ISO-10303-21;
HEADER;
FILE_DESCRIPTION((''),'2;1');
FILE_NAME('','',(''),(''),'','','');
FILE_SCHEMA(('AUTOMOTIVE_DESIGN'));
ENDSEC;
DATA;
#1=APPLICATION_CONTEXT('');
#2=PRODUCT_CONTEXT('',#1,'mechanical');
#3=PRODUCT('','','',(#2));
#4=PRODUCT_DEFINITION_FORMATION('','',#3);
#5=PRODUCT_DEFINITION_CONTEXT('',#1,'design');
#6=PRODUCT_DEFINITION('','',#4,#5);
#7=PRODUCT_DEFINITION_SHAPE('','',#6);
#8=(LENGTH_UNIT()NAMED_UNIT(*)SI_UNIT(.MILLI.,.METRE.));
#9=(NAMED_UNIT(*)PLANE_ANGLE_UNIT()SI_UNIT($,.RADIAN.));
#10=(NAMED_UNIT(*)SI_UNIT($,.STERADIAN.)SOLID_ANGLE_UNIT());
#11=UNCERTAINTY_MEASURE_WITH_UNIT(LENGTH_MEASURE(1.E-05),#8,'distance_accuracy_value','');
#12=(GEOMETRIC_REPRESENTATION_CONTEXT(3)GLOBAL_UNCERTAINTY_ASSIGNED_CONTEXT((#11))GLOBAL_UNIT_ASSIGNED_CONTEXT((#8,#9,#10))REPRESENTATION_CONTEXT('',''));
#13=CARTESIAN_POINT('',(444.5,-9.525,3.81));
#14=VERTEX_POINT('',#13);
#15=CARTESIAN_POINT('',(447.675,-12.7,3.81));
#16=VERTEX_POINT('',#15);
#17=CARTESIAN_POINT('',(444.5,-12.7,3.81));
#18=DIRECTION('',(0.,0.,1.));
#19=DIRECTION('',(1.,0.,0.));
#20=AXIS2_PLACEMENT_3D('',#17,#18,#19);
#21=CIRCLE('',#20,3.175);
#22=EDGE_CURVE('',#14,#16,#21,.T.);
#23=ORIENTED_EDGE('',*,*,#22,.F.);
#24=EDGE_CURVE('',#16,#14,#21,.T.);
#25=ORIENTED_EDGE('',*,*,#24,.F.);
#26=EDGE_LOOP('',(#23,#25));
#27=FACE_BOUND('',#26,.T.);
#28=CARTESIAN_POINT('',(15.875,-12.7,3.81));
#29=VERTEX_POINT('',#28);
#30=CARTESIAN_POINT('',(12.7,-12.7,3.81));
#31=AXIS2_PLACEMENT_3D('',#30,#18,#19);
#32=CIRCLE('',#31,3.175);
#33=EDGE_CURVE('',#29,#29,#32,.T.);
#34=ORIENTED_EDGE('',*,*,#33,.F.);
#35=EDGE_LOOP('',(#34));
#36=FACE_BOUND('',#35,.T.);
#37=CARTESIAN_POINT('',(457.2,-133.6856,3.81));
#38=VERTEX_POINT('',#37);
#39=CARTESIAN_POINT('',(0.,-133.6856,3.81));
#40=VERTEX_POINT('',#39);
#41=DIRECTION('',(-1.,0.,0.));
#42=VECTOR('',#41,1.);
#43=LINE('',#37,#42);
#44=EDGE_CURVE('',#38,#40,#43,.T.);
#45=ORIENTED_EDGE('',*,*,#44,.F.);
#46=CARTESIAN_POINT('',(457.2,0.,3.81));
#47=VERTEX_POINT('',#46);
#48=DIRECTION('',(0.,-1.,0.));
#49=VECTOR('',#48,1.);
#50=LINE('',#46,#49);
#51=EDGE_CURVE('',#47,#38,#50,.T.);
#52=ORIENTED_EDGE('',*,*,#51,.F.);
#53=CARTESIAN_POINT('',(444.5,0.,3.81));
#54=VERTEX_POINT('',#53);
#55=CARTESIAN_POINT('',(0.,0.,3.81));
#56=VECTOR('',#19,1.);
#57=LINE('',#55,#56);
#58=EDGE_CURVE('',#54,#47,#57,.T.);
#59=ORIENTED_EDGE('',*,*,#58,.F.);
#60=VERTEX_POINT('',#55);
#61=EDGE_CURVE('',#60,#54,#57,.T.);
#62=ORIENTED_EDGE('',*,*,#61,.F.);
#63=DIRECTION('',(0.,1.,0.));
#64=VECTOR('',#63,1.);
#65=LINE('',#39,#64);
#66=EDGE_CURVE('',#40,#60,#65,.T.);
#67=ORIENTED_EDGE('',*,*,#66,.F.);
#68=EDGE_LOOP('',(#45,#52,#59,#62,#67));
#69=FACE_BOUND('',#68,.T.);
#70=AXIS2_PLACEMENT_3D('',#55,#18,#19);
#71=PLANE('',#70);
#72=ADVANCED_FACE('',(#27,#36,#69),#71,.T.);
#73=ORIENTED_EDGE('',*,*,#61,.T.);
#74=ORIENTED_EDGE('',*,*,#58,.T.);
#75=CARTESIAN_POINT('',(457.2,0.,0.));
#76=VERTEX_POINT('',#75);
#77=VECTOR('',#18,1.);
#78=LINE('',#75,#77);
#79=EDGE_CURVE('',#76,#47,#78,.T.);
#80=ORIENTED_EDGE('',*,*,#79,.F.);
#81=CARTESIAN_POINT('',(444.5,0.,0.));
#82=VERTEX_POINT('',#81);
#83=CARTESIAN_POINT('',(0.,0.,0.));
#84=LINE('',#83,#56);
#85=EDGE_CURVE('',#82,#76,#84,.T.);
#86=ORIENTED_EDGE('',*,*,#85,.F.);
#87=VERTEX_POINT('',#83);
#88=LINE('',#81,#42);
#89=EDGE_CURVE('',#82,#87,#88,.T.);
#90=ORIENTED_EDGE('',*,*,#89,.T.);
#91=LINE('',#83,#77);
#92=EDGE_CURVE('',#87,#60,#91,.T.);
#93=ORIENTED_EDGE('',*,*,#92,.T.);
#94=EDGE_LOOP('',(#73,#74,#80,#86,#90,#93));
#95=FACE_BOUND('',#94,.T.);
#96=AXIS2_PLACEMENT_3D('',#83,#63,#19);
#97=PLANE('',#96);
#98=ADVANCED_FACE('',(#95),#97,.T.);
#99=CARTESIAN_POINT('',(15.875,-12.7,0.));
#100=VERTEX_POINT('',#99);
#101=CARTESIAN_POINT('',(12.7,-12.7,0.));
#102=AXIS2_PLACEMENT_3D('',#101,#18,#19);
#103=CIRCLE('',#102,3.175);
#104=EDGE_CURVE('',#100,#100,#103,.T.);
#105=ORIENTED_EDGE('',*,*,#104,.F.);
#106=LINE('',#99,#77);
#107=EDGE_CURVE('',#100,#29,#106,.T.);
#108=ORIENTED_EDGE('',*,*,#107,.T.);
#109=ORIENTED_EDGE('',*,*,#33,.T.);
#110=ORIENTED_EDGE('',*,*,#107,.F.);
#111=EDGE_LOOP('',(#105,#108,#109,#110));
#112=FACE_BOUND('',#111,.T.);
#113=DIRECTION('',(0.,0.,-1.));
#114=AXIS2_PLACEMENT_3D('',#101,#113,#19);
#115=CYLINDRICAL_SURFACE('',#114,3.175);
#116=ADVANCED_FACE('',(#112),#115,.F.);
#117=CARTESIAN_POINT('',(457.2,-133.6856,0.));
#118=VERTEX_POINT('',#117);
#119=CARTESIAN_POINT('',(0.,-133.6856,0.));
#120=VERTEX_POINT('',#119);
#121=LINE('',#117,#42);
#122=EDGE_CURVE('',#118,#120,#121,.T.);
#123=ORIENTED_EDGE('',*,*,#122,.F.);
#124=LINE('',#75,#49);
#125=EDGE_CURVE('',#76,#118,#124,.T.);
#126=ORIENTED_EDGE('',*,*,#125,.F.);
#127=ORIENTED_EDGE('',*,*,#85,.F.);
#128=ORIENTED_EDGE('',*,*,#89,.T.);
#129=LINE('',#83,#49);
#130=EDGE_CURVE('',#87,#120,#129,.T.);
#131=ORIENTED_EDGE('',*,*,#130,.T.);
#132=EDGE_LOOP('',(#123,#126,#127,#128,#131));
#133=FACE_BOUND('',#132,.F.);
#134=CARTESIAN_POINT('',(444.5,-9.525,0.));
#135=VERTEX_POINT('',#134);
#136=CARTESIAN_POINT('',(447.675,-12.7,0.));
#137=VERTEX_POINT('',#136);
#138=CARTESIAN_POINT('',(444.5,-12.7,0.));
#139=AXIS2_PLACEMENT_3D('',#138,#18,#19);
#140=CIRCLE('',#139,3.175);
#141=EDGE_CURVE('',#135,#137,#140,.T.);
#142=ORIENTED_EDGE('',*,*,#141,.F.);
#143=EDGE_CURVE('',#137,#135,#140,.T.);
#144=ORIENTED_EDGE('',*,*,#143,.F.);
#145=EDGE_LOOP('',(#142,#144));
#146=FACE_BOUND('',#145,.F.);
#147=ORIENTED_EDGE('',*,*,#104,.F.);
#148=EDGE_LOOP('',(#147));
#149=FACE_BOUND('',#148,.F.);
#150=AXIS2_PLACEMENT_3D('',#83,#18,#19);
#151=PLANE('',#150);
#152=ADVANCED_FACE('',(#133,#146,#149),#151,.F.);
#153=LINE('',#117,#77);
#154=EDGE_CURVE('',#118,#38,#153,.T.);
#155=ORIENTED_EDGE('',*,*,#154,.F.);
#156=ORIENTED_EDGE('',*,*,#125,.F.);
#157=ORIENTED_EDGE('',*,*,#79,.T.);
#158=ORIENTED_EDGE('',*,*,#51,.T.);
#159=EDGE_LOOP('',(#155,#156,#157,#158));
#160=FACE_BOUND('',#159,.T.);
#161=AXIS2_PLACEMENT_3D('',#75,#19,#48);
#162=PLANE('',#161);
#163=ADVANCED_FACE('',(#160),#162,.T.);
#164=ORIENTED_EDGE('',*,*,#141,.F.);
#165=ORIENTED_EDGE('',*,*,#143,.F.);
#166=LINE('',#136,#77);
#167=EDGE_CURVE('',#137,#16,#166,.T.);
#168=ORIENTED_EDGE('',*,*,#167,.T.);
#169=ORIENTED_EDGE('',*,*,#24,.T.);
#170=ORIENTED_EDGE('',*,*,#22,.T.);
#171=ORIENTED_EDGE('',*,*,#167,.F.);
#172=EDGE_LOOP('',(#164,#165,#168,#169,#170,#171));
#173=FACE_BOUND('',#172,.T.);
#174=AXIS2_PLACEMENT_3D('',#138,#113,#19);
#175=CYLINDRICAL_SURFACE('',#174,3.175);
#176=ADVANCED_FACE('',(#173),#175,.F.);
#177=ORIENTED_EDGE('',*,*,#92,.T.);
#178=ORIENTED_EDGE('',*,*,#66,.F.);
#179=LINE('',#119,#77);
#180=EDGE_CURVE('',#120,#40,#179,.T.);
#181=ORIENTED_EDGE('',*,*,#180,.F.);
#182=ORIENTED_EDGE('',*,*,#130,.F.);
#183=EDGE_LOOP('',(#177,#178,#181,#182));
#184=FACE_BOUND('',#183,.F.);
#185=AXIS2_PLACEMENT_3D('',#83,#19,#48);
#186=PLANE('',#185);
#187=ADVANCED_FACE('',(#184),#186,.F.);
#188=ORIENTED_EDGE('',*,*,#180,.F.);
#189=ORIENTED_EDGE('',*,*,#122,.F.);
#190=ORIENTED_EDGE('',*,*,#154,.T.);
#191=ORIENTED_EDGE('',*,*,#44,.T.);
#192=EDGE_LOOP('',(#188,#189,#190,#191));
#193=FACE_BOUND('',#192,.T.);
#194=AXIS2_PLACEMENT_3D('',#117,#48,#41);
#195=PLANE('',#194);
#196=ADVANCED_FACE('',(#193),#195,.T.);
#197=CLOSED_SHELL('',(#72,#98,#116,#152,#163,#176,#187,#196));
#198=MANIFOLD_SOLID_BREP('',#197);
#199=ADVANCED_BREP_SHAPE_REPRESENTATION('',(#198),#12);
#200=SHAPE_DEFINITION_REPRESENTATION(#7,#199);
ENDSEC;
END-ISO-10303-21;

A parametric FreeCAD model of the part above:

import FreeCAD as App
import Part
import Sketcher
from FreeCAD import Vector
Q = App.Units.Quantity

doc = App.newDocument("Part")
params = doc.addObject("Spreadsheet::Sheet", "Params")
for row, (alias, value) in enumerate([
    ("sketch1_diameter", "0.25 in"),
    ("sketch1_width", "18 in"),
    ("sketch1_width2", "0.5 in"),
    ("pad1_length", "0.15 in"),
], start=1):
    params.set(f"A{row}", alias)
    params.set(f"B{row}", "=" + value)
    params.setAlias(f"B{row}", alias)

body = doc.addObject("PartDesign::Body", "Body")

# Sketch on XY plane
sketch1 = body.newObject("Sketcher::SketchObject", "Sketch")
sketch1.AttachmentSupport = (doc.getObject("XY_Plane"), [""])
sketch1.MapMode = "FlatFace"
sketch1.addGeometry([
    Part.LineSegment(Vector(0, 0, 0), Vector(0, -133.7, 0)),  # 0
    Part.LineSegment(Vector(0, -133.7, 0), Vector(457.2, -133.7, 0)),  # 1
    Part.LineSegment(Vector(457.2, -133.7, 0), Vector(457.2, 0, 0)),  # 2
    Part.LineSegment(Vector(457.2, 0, 0), Vector(444.5, 0, 0)),  # 3
    Part.LineSegment(Vector(444.5, 0, 0), Vector(0, 0, 0)),  # 4
    Part.Circle(Vector(12.7, -12.7, 0), Vector(0, 0, 1), 3.2),  # 5
    Part.Circle(Vector(444.5, -12.7, 0), Vector(0, 0, 1), 3.2),  # 6
], False)
sketch1.addConstraint([
    Sketcher.Constraint("Coincident", 0, 2, 1, 1),
    Sketcher.Constraint("Coincident", 1, 2, 2, 1),
    Sketcher.Constraint("Coincident", 2, 2, 3, 1),
    Sketcher.Constraint("Coincident", 3, 2, 4, 1),
    Sketcher.Constraint("Coincident", 4, 2, 0, 1),
    Sketcher.Constraint("Vertical", 0),
    Sketcher.Constraint("Horizontal", 1),
    Sketcher.Constraint("Vertical", 2),
    Sketcher.Constraint("Horizontal", 3),
    Sketcher.Constraint("Horizontal", 4),
    Sketcher.Constraint("Coincident", 4, 2, -1, 1),
    Sketcher.Constraint("Equal", 5, 6),
    Sketcher.Constraint("Horizontal", 5, 3, 6, 3),
    Sketcher.Constraint("Vertical", 6, 3, 3, 2),
    Sketcher.Constraint("Diameter", 5, Q("0.25 in")),
    Sketcher.Constraint("DistanceX", 1, 1, 1, 2, Q("18 in")),
    Sketcher.Constraint("DistanceX", 3, 2, 3, 1, Q("0.5 in")),
    Sketcher.Constraint("DistanceX", -1, 1, 5, 3, Q("0.5 in")),
    Sketcher.Constraint("DistanceY", 5, 3, -1, 1, Q("0.5 in")),
    Sketcher.Constraint("DistanceY", 0, 2, 0, 1, Q("133.6856 mm")),
])
sketch1.setExpression("Constraints[14]", "Params.sketch1_diameter")
sketch1.setExpression("Constraints[15]", "Params.sketch1_width")
sketch1.setExpression("Constraints[16]", "Params.sketch1_width2")
pad1 = body.newObject("PartDesign::Pad", "Pad")
pad1.Profile = sketch1
pad1.setExpression("Length", "Params.pad1_length")

doc.recompute()
